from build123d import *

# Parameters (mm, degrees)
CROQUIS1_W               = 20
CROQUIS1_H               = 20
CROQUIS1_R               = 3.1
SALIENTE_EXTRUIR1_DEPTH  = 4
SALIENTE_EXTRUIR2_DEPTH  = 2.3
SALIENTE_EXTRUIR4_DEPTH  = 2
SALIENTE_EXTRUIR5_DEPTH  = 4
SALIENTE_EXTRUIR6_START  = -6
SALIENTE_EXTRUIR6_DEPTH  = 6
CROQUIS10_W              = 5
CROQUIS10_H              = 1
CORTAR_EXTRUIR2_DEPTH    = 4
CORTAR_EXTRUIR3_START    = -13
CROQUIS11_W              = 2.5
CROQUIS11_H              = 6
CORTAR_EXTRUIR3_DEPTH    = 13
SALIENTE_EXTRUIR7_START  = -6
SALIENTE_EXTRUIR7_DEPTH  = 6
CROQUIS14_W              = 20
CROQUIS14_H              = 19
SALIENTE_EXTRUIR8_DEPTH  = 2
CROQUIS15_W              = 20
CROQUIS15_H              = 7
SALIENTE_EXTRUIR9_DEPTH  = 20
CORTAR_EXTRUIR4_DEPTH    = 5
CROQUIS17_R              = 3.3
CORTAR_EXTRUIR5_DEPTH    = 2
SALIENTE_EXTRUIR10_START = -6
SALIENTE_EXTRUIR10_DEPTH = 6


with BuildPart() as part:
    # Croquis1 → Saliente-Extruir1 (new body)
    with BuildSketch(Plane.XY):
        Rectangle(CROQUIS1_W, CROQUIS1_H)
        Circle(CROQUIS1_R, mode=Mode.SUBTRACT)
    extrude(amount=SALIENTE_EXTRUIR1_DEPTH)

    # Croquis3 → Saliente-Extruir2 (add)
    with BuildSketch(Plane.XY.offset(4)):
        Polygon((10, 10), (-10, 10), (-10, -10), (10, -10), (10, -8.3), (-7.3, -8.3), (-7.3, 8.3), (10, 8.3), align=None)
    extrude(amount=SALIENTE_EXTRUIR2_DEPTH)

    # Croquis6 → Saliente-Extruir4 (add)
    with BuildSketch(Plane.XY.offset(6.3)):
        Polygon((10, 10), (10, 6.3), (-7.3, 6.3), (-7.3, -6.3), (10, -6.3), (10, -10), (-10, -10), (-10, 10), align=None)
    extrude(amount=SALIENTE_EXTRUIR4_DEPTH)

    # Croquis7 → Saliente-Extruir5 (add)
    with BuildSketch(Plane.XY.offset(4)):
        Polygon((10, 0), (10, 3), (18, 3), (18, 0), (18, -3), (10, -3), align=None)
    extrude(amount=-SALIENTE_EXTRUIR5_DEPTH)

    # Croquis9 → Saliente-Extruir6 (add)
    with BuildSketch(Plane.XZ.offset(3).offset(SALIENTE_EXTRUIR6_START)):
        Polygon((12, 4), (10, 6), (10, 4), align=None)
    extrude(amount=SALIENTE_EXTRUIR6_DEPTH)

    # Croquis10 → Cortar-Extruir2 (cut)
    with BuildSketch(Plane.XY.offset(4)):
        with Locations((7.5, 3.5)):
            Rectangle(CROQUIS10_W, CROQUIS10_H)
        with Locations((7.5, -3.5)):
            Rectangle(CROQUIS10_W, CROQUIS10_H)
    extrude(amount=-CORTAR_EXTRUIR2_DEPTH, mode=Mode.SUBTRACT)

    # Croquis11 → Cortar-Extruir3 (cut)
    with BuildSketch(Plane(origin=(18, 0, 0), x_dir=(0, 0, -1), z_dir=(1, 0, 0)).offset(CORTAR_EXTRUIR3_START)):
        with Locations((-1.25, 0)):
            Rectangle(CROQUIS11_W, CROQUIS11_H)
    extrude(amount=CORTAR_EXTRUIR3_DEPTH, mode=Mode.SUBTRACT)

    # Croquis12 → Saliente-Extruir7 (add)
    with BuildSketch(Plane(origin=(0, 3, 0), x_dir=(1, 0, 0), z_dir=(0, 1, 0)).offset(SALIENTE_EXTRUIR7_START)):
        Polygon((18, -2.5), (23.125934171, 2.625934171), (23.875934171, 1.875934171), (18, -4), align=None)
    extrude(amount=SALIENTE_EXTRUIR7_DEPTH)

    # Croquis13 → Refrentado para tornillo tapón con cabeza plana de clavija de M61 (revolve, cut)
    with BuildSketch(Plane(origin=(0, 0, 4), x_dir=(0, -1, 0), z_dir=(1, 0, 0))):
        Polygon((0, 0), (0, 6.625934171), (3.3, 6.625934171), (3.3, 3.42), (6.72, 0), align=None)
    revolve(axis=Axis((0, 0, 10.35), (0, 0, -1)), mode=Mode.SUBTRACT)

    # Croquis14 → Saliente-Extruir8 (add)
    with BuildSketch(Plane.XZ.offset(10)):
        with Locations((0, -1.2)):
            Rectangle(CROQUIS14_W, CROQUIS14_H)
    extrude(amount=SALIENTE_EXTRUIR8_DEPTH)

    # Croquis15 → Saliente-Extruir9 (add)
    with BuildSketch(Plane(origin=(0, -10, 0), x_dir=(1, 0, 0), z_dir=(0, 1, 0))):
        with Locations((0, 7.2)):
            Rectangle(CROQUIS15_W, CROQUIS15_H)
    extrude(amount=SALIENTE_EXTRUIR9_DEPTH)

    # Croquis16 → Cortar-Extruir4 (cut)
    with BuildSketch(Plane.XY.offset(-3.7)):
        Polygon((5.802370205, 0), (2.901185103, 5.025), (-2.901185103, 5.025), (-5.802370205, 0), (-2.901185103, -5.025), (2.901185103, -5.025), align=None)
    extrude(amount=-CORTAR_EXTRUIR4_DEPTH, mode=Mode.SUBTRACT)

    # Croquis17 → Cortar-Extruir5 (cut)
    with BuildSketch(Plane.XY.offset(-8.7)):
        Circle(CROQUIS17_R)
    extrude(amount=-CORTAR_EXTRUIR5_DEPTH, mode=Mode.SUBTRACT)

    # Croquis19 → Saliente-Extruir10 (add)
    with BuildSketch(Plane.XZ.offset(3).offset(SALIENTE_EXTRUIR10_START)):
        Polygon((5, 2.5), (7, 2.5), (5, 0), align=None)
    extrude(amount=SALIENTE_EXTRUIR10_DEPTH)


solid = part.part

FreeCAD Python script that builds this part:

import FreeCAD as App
import Part
import Sketcher
from FreeCAD import Vector
Q = App.Units.Quantity

doc = App.newDocument("Part")
params = doc.addObject("Spreadsheet::Sheet", "Params")
for row, (alias, value) in enumerate([
    ("sketch1_diameter", "6.2 mm"),
    ("sketch1_width", "20 mm"),
    ("pad1_length", "4 mm"),
    ("sketch2_width", "20 mm"),
    ("sketch2_width2", "17.3 mm"),
    ("sketch2_height", "1.7 mm"),
    ("pad2_length", "2.3 mm"),
    ("sketch3_width", "20 mm"),
    ("sketch3_width2", "17.3 mm"),
    ("sketch3_height", "3.7 mm"),
    ("pad3_length", "2 mm"),
    ("sketch4_width", "8 mm"),
    ("sketch4_height", "6 mm"),
    ("pad4_length", "4 mm"),
    ("sketch5_width", "2 mm"),
    ("pad5_length", "6 mm"),
    ("sketch6_width", "5 mm"),
    ("sketch6_height", "1 mm"),
    ("pocket1_length", "4 mm"),
    ("sketch7_width", "6 mm"),
    ("sketch7_height", "2.5 mm"),
    ("pocket2_length", "13 mm"),
    ("sketch8_height", "1.5 mm"),
    ("pad6_length", "6 mm"),
    ("sketch9_width", "3.3 mm"),
    ("sketch9_width2", "6.72 mm"),
    ("groove_angle", "360 deg"),
    ("sketch10_width", "20 mm"),
    ("sketch10_height", "19 mm"),
    ("pad7_length", "2 mm"),
    ("sketch11_width", "20 mm"),
    ("sketch11_height", "7 mm"),
    ("pad8_length", "20 mm"),
    ("pocket3_length", "5 mm"),
    ("sketch13_diameter", "6.6 mm"),
    ("pocket4_length", "2 mm"),
    ("sketch14_width", "2 mm"),
    ("sketch14_height", "2.5 mm"),
    ("pad9_length", "6 mm"),
], start=1):
    params.set(f"A{row}", alias)
    params.set(f"B{row}", "=" + value)
    params.setAlias(f"B{row}", alias)

body = doc.addObject("PartDesign::Body", "Body")

# Sketch on XY plane
sketch1 = body.newObject("Sketcher::SketchObject", "Sketch")
sketch1.AttachmentSupport = (doc.getObject("XY_Plane"), [""])
sketch1.MapMode = "FlatFace"
sketch1.addGeometry(Part.LineSegment(Vector(-10, 10, 0), Vector(-10, -10, 0)), False)
sketch1.addGeometry(Part.LineSegment(Vector(-10, -10, 0), Vector(10, -10, 0)), False)
sketch1.addGeometry(Part.LineSegment(Vector(10, -10, 0), Vector(10, 10, 0)), False)
sketch1.addGeometry(Part.LineSegment(Vector(10, 10, 0), Vector(-10, 10, 0)), False)
sketch1.addGeometry(Part.Circle(Vector(0, 0, 0), Vector(0, 0, 1), 3.1), False)
sketch1.addConstraint(Sketcher.Constraint("Coincident", 0, 2, 1, 1))
sketch1.addConstraint(Sketcher.Constraint("Coincident", 1, 2, 2, 1))
sketch1.addConstraint(Sketcher.Constraint("Coincident", 2, 2, 3, 1))
sketch1.addConstraint(Sketcher.Constraint("Coincident", 3, 2, 0, 1))
sketch1.addConstraint(Sketcher.Constraint("Vertical", 0))
sketch1.addConstraint(Sketcher.Constraint("Horizontal", 1))
sketch1.addConstraint(Sketcher.Constraint("Vertical", 2))
sketch1.addConstraint(Sketcher.Constraint("Horizontal", 3))
sketch1.addConstraint(Sketcher.Constraint("Coincident", 4, 3, -1, 1))
sketch1.addConstraint(Sketcher.Constraint("Symmetric", 0, 2, 2, 2, -1, 1))
sketch1.addConstraint(Sketcher.Constraint("Equal", 3, 0))
sketch1.addConstraint(Sketcher.Constraint("Diameter", 4, 6.2))
sketch1.addConstraint(Sketcher.Constraint("DistanceX", 1, 1, 1, 2, 20.0))
sketch1.setExpression("Constraints[11]", "Params.sketch1_diameter")
sketch1.setExpression("Constraints[12]", "Params.sketch1_width")
pad1 = body.newObject("PartDesign::Pad", "Pad")
pad1.Profile = sketch1
pad1.setExpression("Length", "Params.pad1_length")

# Sketch on XY plane
sketch2 = body.newObject("Sketcher::SketchObject", "Sketch001")
sketch2.AttachmentSupport = (doc.getObject("XY_Plane"), [""])
sketch2.MapMode = "FlatFace"
sketch2.AttachmentOffset = App.Placement(Vector(0, 0, 4), App.Rotation())
sketch2.addGeometry(Part.LineSegment(Vector(10, 10, 0), Vector(-10, 10, 0)), False)
sketch2.addGeometry(Part.LineSegment(Vector(-10, 10, 0), Vector(-10, -10, 0)), False)
sketch2.addGeometry(Part.LineSegment(Vector(-10, -10, 0), Vector(10, -10, 0)), False)
sketch2.addGeometry(Part.LineSegment(Vector(10, -10, 0), Vector(10, -8.3, 0)), False)
sketch2.addGeometry(Part.LineSegment(Vector(10, -8.3, 0), Vector(-7.3, -8.3, 0)), False)
sketch2.addGeometry(Part.LineSegment(Vector(-7.3, -8.3, 0), Vector(-7.3, 8.3, 0)), False)
sketch2.addGeometry(Part.LineSegment(Vector(-7.3, 8.3, 0), Vector(10, 8.3, 0)), False)
sketch2.addGeometry(Part.LineSegment(Vector(10, 8.3, 0), Vector(10, 10, 0)), False)
sketch2.addConstraint(Sketcher.Constraint("Coincident", 0, 2, 1, 1))
sketch2.addConstraint(Sketcher.Constraint("Coincident", 1, 2, 2, 1))
sketch2.addConstraint(Sketcher.Constraint("Coincident", 2, 2, 3, 1))
sketch2.addConstraint(Sketcher.Constraint("Coincident", 3, 2, 4, 1))
sketch2.addConstraint(Sketcher.Constraint("Coincident", 4, 2, 5, 1))
sketch2.addConstraint(Sketcher.Constraint("Coincident", 5, 2, 6, 1))
sketch2.addConstraint(Sketcher.Constraint("Coincident", 6, 2, 7, 1))
sketch2.addConstraint(Sketcher.Constraint("Coincident", 7, 2, 0, 1))
sketch2.addConstraint(Sketcher.Constraint("Horizontal", 0))
sketch2.addConstraint(Sketcher.Constraint("Vertical", 1))
sketch2.addConstraint(Sketcher.Constraint("Horizontal", 2))
sketch2.addConstraint(Sketcher.Constraint("Vertical", 3))
sketch2.addConstraint(Sketcher.Constraint("Horizontal", 4))
sketch2.addConstraint(Sketcher.Constraint("Vertical", 5))
sketch2.addConstraint(Sketcher.Constraint("Horizontal", 6))
sketch2.addConstraint(Sketcher.Constraint("Vertical", 7))
sketch2.addConstraint(Sketcher.Constraint("Symmetric", 0, 2, 2, 2, -1, 1))
sketch2.addConstraint(Sketcher.Constraint("Symmetric", 3, 2, 6, 2, -1))
sketch2.addConstraint(Sketcher.Constraint("Equal", 2, 1))
sketch2.addConstraint(Sketcher.Constraint("DistanceX", 0, 2, 0, 1, 20.0))
sketch2.addConstraint(Sketcher.Constraint("DistanceX", 4, 2, 4, 1, 17.3))
sketch2.addConstraint(Sketcher.Constraint("DistanceY", 3, 1, 3, 2, 1.7))
sketch2.setExpression("Constraints[19]", "Params.sketch2_width")
sketch2.setExpression("Constraints[20]", "Params.sketch2_width2")
sketch2.setExpression("Constraints[21]", "Params.sketch2_height")
pad2 = body.newObject("PartDesign::Pad", "Pad001")
pad2.Profile = sketch2
pad2.setExpression("Length", "Params.pad2_length")

# Sketch on XY plane
sketch3 = body.newObject("Sketcher::SketchObject", "Sketch002")
sketch3.AttachmentSupport = (doc.getObject("XY_Plane"), [""])
sketch3.MapMode = "FlatFace"
sketch3.AttachmentOffset = App.Placement(Vector(0, 0, 6.3), App.Rotation())
sketch3.addGeometry(Part.LineSegment(Vector(10, 6.3, 0), Vector(10, 10, 0)), False)
sketch3.addGeometry(Part.LineSegment(Vector(10, 10, 0), Vector(-10, 10, 0)), False)
sketch3.addGeometry(Part.LineSegment(Vector(-10, 10, 0), Vector(-10, -10, 0)), False)
sketch3.addGeometry(Part.LineSegment(Vector(-10, -10, 0), Vector(10, -10, 0)), False)
sketch3.addGeometry(Part.LineSegment(Vector(10, -10, 0), Vector(10, -6.3, 0)), False)
sketch3.addGeometry(Part.LineSegment(Vector(10, -6.3, 0), Vector(-7.3, -6.3, 0)), False)
sketch3.addGeometry(Part.LineSegment(Vector(-7.3, -6.3, 0), Vector(-7.3, 6.3, 0)), False)
sketch3.addGeometry(Part.LineSegment(Vector(-7.3, 6.3, 0), Vector(10, 6.3, 0)), False)
sketch3.addConstraint(Sketcher.Constraint("Coincident", 0, 2, 1, 1))
sketch3.addConstraint(Sketcher.Constraint("Coincident", 1, 2, 2, 1))
sketch3.addConstraint(Sketcher.Constraint("Coincident", 2, 2, 3, 1))
sketch3.addConstraint(Sketcher.Constraint("Coincident", 3, 2, 4, 1))
sketch3.addConstraint(Sketcher.Constraint("Coincident", 4, 2, 5, 1))
sketch3.addConstraint(Sketcher.Constraint("Coincident", 5, 2, 6, 1))
sketch3.addConstraint(Sketcher.Constraint("Coincident", 6, 2, 7, 1))
sketch3.addConstraint(Sketcher.Constraint("Coincident", 7, 2, 0, 1))
sketch3.addConstraint(Sketcher.Constraint("Vertical", 0))
sketch3.addConstraint(Sketcher.Constraint("Horizontal", 1))
sketch3.addConstraint(Sketcher.Constraint("Vertical", 2))
sketch3.addConstraint(Sketcher.Constraint("Horizontal", 3))
sketch3.addConstraint(Sketcher.Constraint("Vertical", 4))
sketch3.addConstraint(Sketcher.Constraint("Horizontal", 5))
sketch3.addConstraint(Sketcher.Constraint("Vertical", 6))
sketch3.addConstraint(Sketcher.Constraint("Horizontal", 7))
sketch3.addConstraint(Sketcher.Constraint("Symmetric", 0, 2, 2, 2, -1, 1))
sketch3.addConstraint(Sketcher.Constraint("Symmetric", 4, 2, 7, 2, -1))
sketch3.addConstraint(Sketcher.Constraint("Equal", 3, 2))
sketch3.addConstraint(Sketcher.Constraint("DistanceX", 1, 2, 1, 1, 20.0))
sketch3.addConstraint(Sketcher.Constraint("DistanceX", 5, 2, 5, 1, 17.3))
sketch3.addConstraint(Sketcher.Constraint("DistanceY", 0, 1, 0, 2, 3.7))
sketch3.setExpression("Constraints[19]", "Params.sketch3_width")
sketch3.setExpression("Constraints[20]", "Params.sketch3_width2")
sketch3.setExpression("Constraints[21]", "Params.sketch3_height")
pad3 = body.newObject("PartDesign::Pad", "Pad002")
pad3.Profile = sketch3
pad3.setExpression("Length", "Params.pad3_length")

# Sketch on XY plane
sketch4 = body.newObject("Sketcher::SketchObject", "Sketch003")
sketch4.AttachmentSupport = (doc.getObject("XY_Plane"), [""])
sketch4.MapMode = "FlatFace"
sketch4.AttachmentOffset = App.Placement(Vector(0, 0, 4), App.Rotation())
sketch4.addGeometry(Part.LineSegment(Vector(10, 3, 0), Vector(10, -3, 0)), False)
sketch4.addGeometry(Part.LineSegment(Vector(10, -3, 0), Vector(18, -3, 0)), False)
sketch4.addGeometry(Part.LineSegment(Vector(18, -3, 0), Vector(18, 3, 0)), False)
sketch4.addGeometry(Part.LineSegment(Vector(18, 3, 0), Vector(10, 3, 0)), False)
sketch4.addConstraint(Sketcher.Constraint("Coincident", 0, 2, 1, 1))
sketch4.addConstraint(Sketcher.Constraint("Coincident", 1, 2, 2, 1))
sketch4.addConstraint(Sketcher.Constraint("Coincident", 2, 2, 3, 1))
sketch4.addConstraint(Sketcher.Constraint("Coincident", 3, 2, 0, 1))
sketch4.addConstraint(Sketcher.Constraint("Vertical", 0))
sketch4.addConstraint(Sketcher.Constraint("Horizontal", 1))
sketch4.addConstraint(Sketcher.Constraint("Vertical", 2))
sketch4.addConstraint(Sketcher.Constraint("Horizontal", 3))
sketch4.addConstraint(Sketcher.Constraint("DistanceX", 1, 1, 1, 2, 8.0))
sketch4.addConstraint(Sketcher.Constraint("DistanceY", 0, 2, 0, 1, 6.0))
sketch4.addConstraint(Sketcher.Constraint("DistanceX", -1, 1, 0, 2, 10.0))
sketch4.addConstraint(Sketcher.Constraint("DistanceY", 0, 2, -1, 1, 3.0))
sketch4.setExpression("Constraints[8]", "Params.sketch4_width")
sketch4.setExpression("Constraints[9]", "Params.sketch4_height")
pad4 = body.newObject("PartDesign::Pad", "Pad003")
pad4.Profile = sketch4
pad4.setExpression("Length", "Params.pad4_length")
pad4.Reversed = True

# Sketch on XZ plane
sketch5 = body.newObject("Sketcher::SketchObject", "Sketch004")
sketch5.AttachmentSupport = (doc.getObject("XZ_Plane"), [""])
sketch5.MapMode = "FlatFace"
sketch5.AttachmentOffset = App.Placement(Vector(0, 0, -3), App.Rotation())
sketch5.addGeometry(Part.LineSegment(Vector(12, 4, 0), Vector(10, 6, 0)), False)
sketch5.addGeometry(Part.LineSegment(Vector(10, 6, 0), Vector(10, 4, 0)), False)
sketch5.addGeometry(Part.LineSegment(Vector(10, 4, 0), Vector(12, 4, 0)), False)
sketch5.addConstraint(Sketcher.Constraint("Coincident", 0, 2, 1, 1))
sketch5.addConstraint(Sketcher.Constraint("Coincident", 1, 2, 2, 1))
sketch5.addConstraint(Sketcher.Constraint("Coincident", 2, 2, 0, 1))
sketch5.addConstraint(Sketcher.Constraint("Vertical", 1))
sketch5.addConstraint(Sketcher.Constraint("Horizontal", 2))
sketch5.addConstraint(Sketcher.Constraint("Equal", 2, 1))
sketch5.addConstraint(Sketcher.Constraint("DistanceX", 2, 1, 2, 2, 2.0))
sketch5.addConstraint(Sketcher.Constraint("DistanceX", -1, 1, 0, 2, 10.0))
sketch5.addConstraint(Sketcher.Constraint("DistanceY", -1, 1, 0, 2, 6.0))
sketch5.setExpression("Constraints[6]", "Params.sketch5_width")
pad5 = body.newObject("PartDesign::Pad", "Pad004")
pad5.Profile = sketch5
pad5.setExpression("Length", "Params.pad5_length")

# Sketch on XY plane
sketch6 = body.newObject("Sketcher::SketchObject", "Sketch005")
sketch6.AttachmentSupport = (doc.getObject("XY_Plane"), [""])
sketch6.MapMode = "FlatFace"
sketch6.AttachmentOffset = App.Placement(Vector(0, 0, 4), App.Rotation())
sketch6.addGeometry(Part.LineSegment(Vector(5, 4, 0), Vector(5, 3, 0)), False)
sketch6.addGeometry(Part.LineSegment(Vector(5, 3, 0), Vector(10, 3, 0)), False)
sketch6.addGeometry(Part.LineSegment(Vector(10, 3, 0), Vector(10, 4, 0)), False)
sketch6.addGeometry(Part.LineSegment(Vector(10, 4, 0), Vector(5, 4, 0)), False)
sketch6.addGeometry(Part.LineSegment(Vector(5, -3, 0), Vector(5, -4, 0)), False)
sketch6.addGeometry(Part.LineSegment(Vector(5, -4, 0), Vector(10, -4, 0)), False)
sketch6.addGeometry(Part.LineSegment(Vector(10, -4, 0), Vector(10, -3, 0)), False)
sketch6.addGeometry(Part.LineSegment(Vector(10, -3, 0), Vector(5, -3, 0)), False)
sketch6.addConstraint(Sketcher.Constraint("Coincident", 0, 2, 1, 1))
sketch6.addConstraint(Sketcher.Constraint("Coincident", 1, 2, 2, 1))
sketch6.addConstraint(Sketcher.Constraint("Coincident", 2, 2, 3, 1))
sketch6.addConstraint(Sketcher.Constraint("Coincident", 3, 2, 0, 1))
sketch6.addConstraint(Sketcher.Constraint("Coincident", 4, 2, 5, 1))
sketch6.addConstraint(Sketcher.Constraint("Coincident", 5, 2, 6, 1))
sketch6.addConstraint(Sketcher.Constraint("Coincident", 6, 2, 7, 1))
sketch6.addConstraint(Sketcher.Constraint("Coincident", 7, 2, 4, 1))
sketch6.addConstraint(Sketcher.Constraint("Vertical", 0))
sketch6.addConstraint(Sketcher.Constraint("Horizontal", 1))
sketch6.addConstraint(Sketcher.Constraint("Vertical", 2))
sketch6.addConstraint(Sketcher.Constraint("Horizontal", 3))
sketch6.addConstraint(Sketcher.Constraint("Vertical", 4))
sketch6.addConstraint(Sketcher.Constraint("Horizontal", 5))
sketch6.addConstraint(Sketcher.Constraint("Vertical", 6))
sketch6.addConstraint(Sketcher.Constraint("Horizontal", 7))
sketch6.addConstraint(Sketcher.Constraint("Symmetric", 3, 2, 4, 2, -1))
sketch6.addConstraint(Sketcher.Constraint("Symmetric", 1, 2, 6, 2, -1))
sketch6.addConstraint(Sketcher.Constraint("DistanceX", 1, 1, 1, 2, 5.0))
sketch6.addConstraint(Sketcher.Constraint("DistanceY", 0, 2, 0, 1, 1.0))
sketch6.addConstraint(Sketcher.Constraint("DistanceX", -1, 1, 0, 2, 5.0))
sketch6.addConstraint(Sketcher.Constraint("DistanceY", -1, 1, 0, 2, 3.0))
sketch6.setExpression("Constraints[18]", "Params.sketch6_width")
sketch6.setExpression("Constraints[19]", "Params.sketch6_height")
pocket1 = body.newObject("PartDesign::Pocket", "Pocket")
pocket1.Profile = sketch6
pocket1.setExpression("Length", "Params.pocket1_length")

# Sketch on YZ plane
sketch7 = body.newObject("Sketcher::SketchObject", "Sketch006")
sketch7.AttachmentSupport = (doc.getObject("YZ_Plane"), [""])
sketch7.MapMode = "FlatFace"
sketch7.AttachmentOffset = App.Placement(Vector(0, 0, 5), App.Rotation())
sketch7.addGeometry(Part.LineSegment(Vector(3, 2.5, 0), Vector(-3, 2.5, 0)), False)
sketch7.addGeometry(Part.LineSegment(Vector(-3, 2.5, 0), Vector(-3, 0, 0)), False)
sketch7.addGeometry(Part.LineSegment(Vector(-3, 0, 0), Vector(3, 0, 0)), False)
sketch7.addGeometry(Part.LineSegment(Vector(3, 0, 0), Vector(3, 2.5, 0)), False)
sketch7.addConstraint(Sketcher.Constraint("Coincident", 0, 2, 1, 1))
sketch7.addConstraint(Sketcher.Constraint("Coincident", 1, 2, 2, 1))
sketch7.addConstraint(Sketcher.Constraint("Coincident", 2, 2, 3, 1))
sketch7.addConstraint(Sketcher.Constraint("Coincident", 3, 2, 0, 1))
sketch7.addConstraint(Sketcher.Constraint("Horizontal", 0))
sketch7.addConstraint(Sketcher.Constraint("Vertical", 1))
sketch7.addConstraint(Sketcher.Constraint("Horizontal", 2))
sketch7.addConstraint(Sketcher.Constraint("Vertical", 3))
sketch7.addConstraint(Sketcher.Constraint("Symmetric", 1, 2, 2, 2, -1, 1))
sketch7.addConstraint(Sketcher.Constraint("DistanceX", 0, 2, 0, 1, 6.0))
sketch7.addConstraint(Sketcher.Constraint("DistanceY", 1, 2, 1, 1, 2.5))
sketch7.setExpression("Constraints[9]", "Params.sketch7_width")
sketch7.setExpression("Constraints[10]", "Params.sketch7_height")
pocket2 = body.newObject("PartDesign::Pocket", "Pocket001")
pocket2.Profile = sketch7
pocket2.setExpression("Length", "Params.pocket2_length")
pocket2.Reversed = True

# Sketch on XZ plane
sketch8 = body.newObject("Sketcher::SketchObject", "Sketch007")
sketch8.AttachmentSupport = (doc.getObject("XZ_Plane"), [""])
sketch8.MapMode = "FlatFace"
sketch8.AttachmentOffset = App.Placement(Vector(0, 0, 3), App.Rotation())
sketch8.addGeometry(Part.LineSegment(Vector(23.125934, -2.625934, 0), Vector(18, 2.5, 0)), False)
sketch8.addGeometry(Part.LineSegment(Vector(18, 2.5, 0), Vector(18, 4, 0)), False)
sketch8.addGeometry(Part.LineSegment(Vector(18, 4, 0), Vector(23.875934, -1.875934, 0)), False)
sketch8.addGeometry(Part.LineSegment(Vector(23.875934, -1.875934, 0), Vector(23.125934, -2.625934, 0)), False)
sketch8.addConstraint(Sketcher.Constraint("Coincident", 0, 2, 1, 1))
sketch8.addConstraint(Sketcher.Constraint("Coincident", 1, 2, 2, 1))
sketch8.addConstraint(Sketcher.Constraint("Coincident", 2, 2, 3, 1))
sketch8.addConstraint(Sketcher.Constraint("Coincident", 3, 2, 0, 1))
sketch8.addConstraint(Sketcher.Constraint("Vertical", 1))
sketch8.addConstraint(Sketcher.Constraint("Parallel", 0, 2))
sketch8.addConstraint(Sketcher.Constraint("Perpendicular", 2, 3))
sketch8.addConstraint(Sketcher.Constraint("Angle", 0, Q("135 deg")))
sketch8.addConstraint(Sketcher.Constraint("DistanceY", 1, 1, 1, 2, 1.5))
sketch8.addConstraint(Sketcher.Constraint("DistanceX", -1, 1, 0, 2, 18.0))
sketch8.addConstraint(Sketcher.Constraint("DistanceY", -1, 1, 1, 2, 4.0))
sketch8.addConstraint(Sketcher.Constraint("Distance", 0, 7.249166))
sketch8.setExpression("Constraints[8]", "Params.sketch8_height")
pad6 = body.newObject("PartDesign::Pad", "Pad005")
pad6.Profile = sketch8
pad6.setExpression("Length", "Params.pad6_length")
pad6.Reversed = True

# Sketch on YZ plane
sketch9 = body.newObject("Sketcher::SketchObject", "Sketch008")
sketch9.AttachmentSupport = (doc.getObject("YZ_Plane"), [""])
sketch9.MapMode = "FlatFace"
sketch9.addGeometry(Part.LineSegment(Vector(0, -2.625934, 0), Vector(0, 4, 0)), False)
sketch9.addGeometry(Part.LineSegment(Vector(0, 4, 0), Vector(-6.72, 4, 0)), False)
sketch9.addGeometry(Part.LineSegment(Vector(-6.72, 4, 0), Vector(-3.3, 0.58, 0)), False)
sketch9.addGeometry(Part.LineSegment(Vector(-3.3, 0.58, 0), Vector(-3.3, -2.625934, 0)), False)
sketch9.addGeometry(Part.LineSegment(Vector(-3.3, -2.625934, 0), Vector(0, -2.625934, 0)), False)
sketch9.addConstraint(Sketcher.Constraint("Coincident", 0, 2, 1, 1))
sketch9.addConstraint(Sketcher.Constraint("Coincident", 1, 2, 2, 1))
sketch9.addConstraint(Sketcher.Constraint("Coincident", 2, 2, 3, 1))
sketch9.addConstraint(Sketcher.Constraint("Coincident", 3, 2, 4, 1))
sketch9.addConstraint(Sketcher.Constraint("Coincident", 4, 2, 0, 1))
sketch9.addConstraint(Sketcher.Constraint("Vertical", 0))
sketch9.addConstraint(Sketcher.Constraint("Horizontal", 1))
sketch9.addConstraint(Sketcher.Constraint("Vertical", 3))
sketch9.addConstraint(Sketcher.Constraint("Horizontal", 4))
sketch9.addConstraint(Sketcher.Constraint("PointOnObject", 0, 2, -2))
sketch9.addConstraint(Sketcher.Constraint("Angle", 2, Q("-45 deg")))
sketch9.addConstraint(Sketcher.Constraint("DistanceX", 4, 1, 4, 2, 3.3))
sketch9.addConstraint(Sketcher.Constraint("DistanceY", -1, 1, 0, 2, 4.0))
sketch9.addConstraint(Sketcher.Constraint("DistanceX", 1, 2, 1, 1, 6.72))
sketch9.addConstraint(Sketcher.Constraint("DistanceY", 0, 1, 0, 2, 6.625934))
sketch9.setExpression("Constraints[11]", "Params.sketch9_width")
sketch9.setExpression("Constraints[13]", "Params.sketch9_width2")
groove = body.newObject("PartDesign::Groove", "Groove")
groove.Profile = sketch9
groove.ReferenceAxis = (sketch9, ["V_Axis"])
groove.setExpression("Angle", "Params.groove_angle")

# Sketch on XZ plane
sketch10 = body.newObject("Sketcher::SketchObject", "Sketch009")
sketch10.AttachmentSupport = (doc.getObject("XZ_Plane"), [""])
sketch10.MapMode = "FlatFace"
sketch10.AttachmentOffset = App.Placement(Vector(0, 0, 10), App.Rotation())
sketch10.addGeometry(Part.LineSegment(Vector(-10, 8.3, 0), Vector(-10, -10.7, 0)), False)
sketch10.addGeometry(Part.LineSegment(Vector(-10, -10.7, 0), Vector(10, -10.7, 0)), False)
sketch10.addGeometry(Part.LineSegment(Vector(10, -10.7, 0), Vector(10, 8.3, 0)), False)
sketch10.addGeometry(Part.LineSegment(Vector(10, 8.3, 0), Vector(-10, 8.3, 0)), False)
sketch10.addConstraint(Sketcher.Constraint("Coincident", 0, 2, 1, 1))
sketch10.addConstraint(Sketcher.Constraint("Coincident", 1, 2, 2, 1))
sketch10.addConstraint(Sketcher.Constraint("Coincident", 2, 2, 3, 1))
sketch10.addConstraint(Sketcher.Constraint("Coincident", 3, 2, 0, 1))
sketch10.addConstraint(Sketcher.Constraint("Vertical", 0))
sketch10.addConstraint(Sketcher.Constraint("Horizontal", 1))
sketch10.addConstraint(Sketcher.Constraint("Vertical", 2))
sketch10.addConstraint(Sketcher.Constraint("Horizontal", 3))
sketch10.addConstraint(Sketcher.Constraint("DistanceX", 1, 1, 1, 2, 20.0))
sketch10.addConstraint(Sketcher.Constraint("DistanceY", 0, 2, 0, 1, 19.0))
sketch10.addConstraint(Sketcher.Constraint("DistanceX", 0, 2, -1, 1, 10.0))
sketch10.addConstraint(Sketcher.Constraint("DistanceY", 0, 2, -1, 1, 10.7))
sketch10.setExpression("Constraints[8]", "Params.sketch10_width")
sketch10.setExpression("Constraints[9]", "Params.sketch10_height")
pad7 = body.newObject("PartDesign::Pad", "Pad006")
pad7.Profile = sketch10
pad7.setExpression("Length", "Params.pad7_length")

# Sketch on XZ plane
sketch11 = body.newObject("Sketcher::SketchObject", "Sketch010")
sketch11.AttachmentSupport = (doc.getObject("XZ_Plane"), [""])
sketch11.MapMode = "FlatFace"
sketch11.AttachmentOffset = App.Placement(Vector(0, 0, 10), App.Rotation())
sketch11.addGeometry(Part.LineSegment(Vector(-10, -10.7, 0), Vector(-10, -3.7, 0)), False)
sketch11.addGeometry(Part.LineSegment(Vector(-10, -3.7, 0), Vector(10, -3.7, 0)), False)
sketch11.addGeometry(Part.LineSegment(Vector(10, -3.7, 0), Vector(10, -10.7, 0)), False)
sketch11.addGeometry(Part.LineSegment(Vector(10, -10.7, 0), Vector(-10, -10.7, 0)), False)
sketch11.addConstraint(Sketcher.Constraint("Coincident", 0, 2, 1, 1))
sketch11.addConstraint(Sketcher.Constraint("Coincident", 1, 2, 2, 1))
sketch11.addConstraint(Sketcher.Constraint("Coincident", 2, 2, 3, 1))
sketch11.addConstraint(Sketcher.Constraint("Coincident", 3, 2, 0, 1))
sketch11.addConstraint(Sketcher.Constraint("Vertical", 0))
sketch11.addConstraint(Sketcher.Constraint("Horizontal", 1))
sketch11.addConstraint(Sketcher.Constraint("Vertical", 2))
sketch11.addConstraint(Sketcher.Constraint("Horizontal", 3))
sketch11.addConstraint(Sketcher.Constraint("DistanceX", 1, 1, 1, 2, 20.0))
sketch11.addConstraint(Sketcher.Constraint("DistanceY", 0, 1, 0, 2, 7.0))
sketch11.addConstraint(Sketcher.Constraint("DistanceX", 0, 2, -1, 1, 10.0))
sketch11.addConstraint(Sketcher.Constraint("DistanceY", 0, 2, -1, 1, 3.7))
sketch11.setExpression("Constraints[8]", "Params.sketch11_width")
sketch11.setExpression("Constraints[9]", "Params.sketch11_height")
pad8 = body.newObject("PartDesign::Pad", "Pad007")
pad8.Profile = sketch11
pad8.setExpression("Length", "Params.pad8_length")
pad8.Reversed = True

# Sketch on XY plane
sketch12 = body.newObject("Sketcher::SketchObject", "Sketch011")
sketch12.AttachmentSupport = (doc.getObject("XY_Plane"), [""])
sketch12.MapMode = "FlatFace"
sketch12.AttachmentOffset = App.Placement(Vector(0, 0, -3.7), App.Rotation())
sketch12.addGeometry(Part.LineSegment(Vector(5.80237, 0, 0), Vector(2.901185, 5.025, 0)), False)
sketch12.addGeometry(Part.LineSegment(Vector(2.901185, 5.025, 0), Vector(-2.901185, 5.025, 0)), False)
sketch12.addGeometry(Part.LineSegment(Vector(-2.901185, 5.025, 0), Vector(-5.80237, 0, 0)), False)
sketch12.addGeometry(Part.LineSegment(Vector(-5.80237, 0, 0), Vector(-2.901185, -5.025, 0)), False)
sketch12.addGeometry(Part.LineSegment(Vector(-2.901185, -5.025, 0), Vector(2.901185, -5.025, 0)), False)
sketch12.addGeometry(Part.LineSegment(Vector(2.901185, -5.025, 0), Vector(5.80237, 0, 0)), False)
sketch12.addConstraint(Sketcher.Constraint("Coincident", 0, 2, 1, 1))
sketch12.addConstraint(Sketcher.Constraint("Coincident", 1, 2, 2, 1))
sketch12.addConstraint(Sketcher.Constraint("Coincident", 2, 2, 3, 1))
sketch12.addConstraint(Sketcher.Constraint("Coincident", 3, 2, 4, 1))
sketch12.addConstraint(Sketcher.Constraint("Coincident", 4, 2, 5, 1))
sketch12.addConstraint(Sketcher.Constraint("Coincident", 5, 2, 0, 1))
sketch12.addConstraint(Sketcher.Constraint("Horizontal", 1))
sketch12.addConstraint(Sketcher.Constraint("Horizontal", 4))
sketch12.addConstraint(Sketcher.Constraint("Symmetric", 0, 2, 3, 2, -1, 1))
sketch12.addConstraint(Sketcher.Constraint("Symmetric", 2, 2, 5, 2, -1, 1))
sketch12.addConstraint(Sketcher.Constraint("PointOnObject", 2, 2, -1))
sketch12.addConstraint(Sketcher.Constraint("Parallel", 2, 5))
sketch12.addConstraint(Sketcher.Constraint("Vertical", 1, 2, 3, 2))
sketch12.addConstraint(Sketcher.Constraint("Angle", 0, Q("120 deg")))
sketch12.addConstraint(Sketcher.Constraint("DistanceY", 3, 2, 1, 2, 10.05))
sketch12.addConstraint(Sketcher.Constraint("DistanceX", 1, 2, 1, 1, 5.80237))
pocket3 = body.newObject("PartDesign::Pocket", "Pocket002")
pocket3.Profile = sketch12
pocket3.setExpression("Length", "Params.pocket3_length")

# Sketch on XY plane
sketch13 = body.newObject("Sketcher::SketchObject", "Sketch012")
sketch13.AttachmentSupport = (doc.getObject("XY_Plane"), [""])
sketch13.MapMode = "FlatFace"
sketch13.AttachmentOffset = App.Placement(Vector(0, 0, -8.7), App.Rotation())
sketch13.addGeometry(Part.Circle(Vector(0, 0, 0), Vector(0, 0, 1), 3.3), False)
sketch13.addConstraint(Sketcher.Constraint("Coincident", 0, 3, -1, 1))
sketch13.addConstraint(Sketcher.Constraint("Diameter", 0, 6.6))
sketch13.setExpression("Constraints[1]", "Params.sketch13_diameter")
pocket4 = body.newObject("PartDesign::Pocket", "Pocket003")
pocket4.Profile = sketch13
pocket4.setExpression("Length", "Params.pocket4_length")

# Sketch on XZ plane
sketch14 = body.newObject("Sketcher::SketchObject", "Sketch013")
sketch14.AttachmentSupport = (doc.getObject("XZ_Plane"), [""])
sketch14.MapMode = "FlatFace"
sketch14.AttachmentOffset = App.Placement(Vector(0, 0, -3), App.Rotation())
sketch14.addGeometry(Part.LineSegment(Vector(7, 2.5, 0), Vector(5, 2.5, 0)), False)
sketch14.addGeometry(Part.LineSegment(Vector(5, 2.5, 0), Vector(5, 0, 0)), False)
sketch14.addGeometry(Part.LineSegment(Vector(5, 0, 0), Vector(7, 2.5, 0)), False)
sketch14.addConstraint(Sketcher.Constraint("Coincident", 0, 2, 1, 1))
sketch14.addConstraint(Sketcher.Constraint("Coincident", 1, 2, 2, 1))
sketch14.addConstraint(Sketcher.Constraint("Coincident", 2, 2, 0, 1))
sketch14.addConstraint(Sketcher.Constraint("Horizontal", 0))
sketch14.addConstraint(Sketcher.Constraint("Vertical", 1))
sketch14.addConstraint(Sketcher.Constraint("PointOnObject", 1, 2, -1))
sketch14.addConstraint(Sketcher.Constraint("DistanceX", 0, 2, 0, 1, 2.0))
sketch14.addConstraint(Sketcher.Constraint("DistanceY", 1, 2, 1, 1, 2.5))
sketch14.addConstraint(Sketcher.Constraint("DistanceX", -1, 1, 0, 2, 5.0))
sketch14.setExpression("Constraints[6]", "Params.sketch14_width")
sketch14.setExpression("Constraints[7]", "Params.sketch14_height")
pad9 = body.newObject("PartDesign::Pad", "Pad008")
pad9.Profile = sketch14
pad9.setExpression("Length", "Params.pad9_length")

doc.recompute()
